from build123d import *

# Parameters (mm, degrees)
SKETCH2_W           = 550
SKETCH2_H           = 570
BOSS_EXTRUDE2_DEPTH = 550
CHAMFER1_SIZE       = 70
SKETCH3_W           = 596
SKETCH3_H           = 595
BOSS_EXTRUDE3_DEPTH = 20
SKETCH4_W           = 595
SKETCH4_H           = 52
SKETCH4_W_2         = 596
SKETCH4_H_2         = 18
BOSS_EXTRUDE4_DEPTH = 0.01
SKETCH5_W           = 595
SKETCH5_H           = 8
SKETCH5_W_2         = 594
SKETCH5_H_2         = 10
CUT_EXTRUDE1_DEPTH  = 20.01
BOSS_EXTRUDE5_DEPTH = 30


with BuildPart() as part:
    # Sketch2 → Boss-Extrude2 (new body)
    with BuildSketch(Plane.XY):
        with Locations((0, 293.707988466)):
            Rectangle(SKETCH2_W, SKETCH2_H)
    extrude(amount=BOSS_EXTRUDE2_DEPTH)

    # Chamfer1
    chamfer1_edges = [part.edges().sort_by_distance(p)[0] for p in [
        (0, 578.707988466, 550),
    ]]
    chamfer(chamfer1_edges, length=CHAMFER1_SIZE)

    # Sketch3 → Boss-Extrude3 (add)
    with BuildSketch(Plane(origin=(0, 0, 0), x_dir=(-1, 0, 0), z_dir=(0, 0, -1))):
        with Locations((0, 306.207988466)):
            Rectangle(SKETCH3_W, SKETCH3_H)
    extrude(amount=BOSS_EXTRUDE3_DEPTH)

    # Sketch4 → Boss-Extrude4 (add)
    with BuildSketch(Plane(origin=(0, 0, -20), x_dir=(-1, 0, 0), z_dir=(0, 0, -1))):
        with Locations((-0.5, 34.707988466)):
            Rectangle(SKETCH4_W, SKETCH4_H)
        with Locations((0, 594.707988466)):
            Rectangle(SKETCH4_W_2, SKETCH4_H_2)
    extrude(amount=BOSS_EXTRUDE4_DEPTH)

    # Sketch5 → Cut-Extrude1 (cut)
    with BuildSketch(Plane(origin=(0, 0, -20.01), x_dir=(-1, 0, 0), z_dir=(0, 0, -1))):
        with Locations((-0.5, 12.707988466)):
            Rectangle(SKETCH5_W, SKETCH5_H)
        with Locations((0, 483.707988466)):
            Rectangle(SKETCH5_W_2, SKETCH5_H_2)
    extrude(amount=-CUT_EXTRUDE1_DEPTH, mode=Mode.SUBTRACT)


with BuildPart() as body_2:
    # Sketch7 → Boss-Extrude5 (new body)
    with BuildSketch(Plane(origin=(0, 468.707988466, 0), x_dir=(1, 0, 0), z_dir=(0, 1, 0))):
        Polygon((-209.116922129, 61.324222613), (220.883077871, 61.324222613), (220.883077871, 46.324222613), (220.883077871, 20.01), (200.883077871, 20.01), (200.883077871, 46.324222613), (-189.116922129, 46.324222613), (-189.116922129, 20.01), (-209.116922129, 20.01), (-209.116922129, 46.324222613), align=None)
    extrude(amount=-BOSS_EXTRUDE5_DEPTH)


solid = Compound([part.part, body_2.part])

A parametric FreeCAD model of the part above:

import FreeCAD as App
import Part
import Sketcher
from FreeCAD import Vector
Q = App.Units.Quantity


def edges_at(feature, points):
    """Names of the edges that pass closest to the given points."""
    edges = feature.Shape.Edges
    near = lambda p: min(range(len(edges)), key=lambda i: edges[i].distToShape(Part.Vertex(*p))[0])
    return sorted({f"Edge{near(p) + 1}" for p in points})


def add_polygon(sketch, points):
    """Adds a closed chain of lines whose ends are joined by coincident constraints."""
    first, n = sketch.GeometryCount, len(points)
    for a, b in zip(points, points[1:] + points[:1]):
        sketch.addGeometry(Part.LineSegment(App.Vector(*a, 0), App.Vector(*b, 0)), False)
    for i in range(n):
        sketch.addConstraint(Sketcher.Constraint("Coincident", first + i, 2, first + (i + 1) % n, 1))

doc = App.newDocument("Part")
params = doc.addObject("Spreadsheet::Sheet", "Params")
for row, (alias, value) in enumerate([
    ("sketch1_width", "550 mm"),
    ("sketch1_height", "570 mm"),
    ("pad1_length", "550 mm"),
    ("chamfer_size", "70 mm"),
    ("sketch2_width", "596 mm"),
    ("sketch2_height", "595 mm"),
    ("pad2_length", "20 mm"),
    ("sketch3_width", "595 mm"),
    ("sketch3_width2", "596 mm"),
    ("sketch3_height", "52 mm"),
    ("sketch3_height2", "18 mm"),
    ("pad3_length", "0.01 mm"),
    ("sketch4_width", "595 mm"),
    ("sketch4_width2", "594 mm"),
    ("sketch4_height", "8 mm"),
    ("sketch4_height2", "10 mm"),
    ("pocket1_length", "20.01 mm"),
    ("sketch5_width", "430 mm"),
    ("sketch5_width2", "20 mm"),
    ("pad4_length", "30 mm"),
], start=1):
    params.set(f"A{row}", alias)
    params.set(f"B{row}", "=" + value)
    params.setAlias(f"B{row}", alias)

body = doc.addObject("PartDesign::Body", "Body")

# Sketch on XY plane
sketch1 = doc.addObject("Sketcher::SketchObject", "Sketch")
body.addObject(sketch1)
sketch1.AttachmentSupport = (doc.XY_Plane, [""])
sketch1.MapMode = "FlatFace"
add_polygon(sketch1, [(-275, 579), (-275, 9), (275, 9), (275, 579)])  # lines 0-3
sketch1.addConstraint([
    Sketcher.Constraint("Vertical", 0),
    Sketcher.Constraint("Horizontal", 1),
    Sketcher.Constraint("Vertical", 2),
    Sketcher.Constraint("Horizontal", 3),
    Sketcher.Constraint("DistanceX", 1, 1, 1, 2, Q("550 mm")),
    Sketcher.Constraint("DistanceY", 0, 2, 0, 1, Q("570 mm")),
    Sketcher.Constraint("DistanceX", 0, 2, -1, 1, Q("275 mm")),
    Sketcher.Constraint("DistanceY", -1, 1, 0, 2, Q("8.707988 mm")),
])
sketch1.setExpression("Constraints[8]", "Params.sketch1_width")
sketch1.setExpression("Constraints[9]", "Params.sketch1_height")
pad1 = doc.addObject("PartDesign::Pad", "Pad")
body.addObject(pad1)
pad1.Profile = sketch1
pad1.setExpression("Length", "Params.pad1_length")
doc.recompute()

chamfer = doc.addObject("PartDesign::Chamfer", "Chamfer")
body.addObject(chamfer)
chamfer.Base = (pad1, edges_at(pad1, [(0, 578.708, 550)]))
chamfer.setExpression("Size", "Params.chamfer_size")

# Sketch on XY plane
sketch2 = doc.addObject("Sketcher::SketchObject", "Sketch001")
body.addObject(sketch2)
sketch2.AttachmentSupport = (doc.XY_Plane, [""])
sketch2.MapMode = "FlatFace"
add_polygon(sketch2, [(298, 604), (298, 9), (-298, 9), (-298, 604)])  # lines 0-3
sketch2.addConstraint([
    Sketcher.Constraint("Vertical", 0),
    Sketcher.Constraint("Horizontal", 1),
    Sketcher.Constraint("Vertical", 2),
    Sketcher.Constraint("Horizontal", 3),
    Sketcher.Constraint("DistanceX", 1, 2, 1, 1, Q("596 mm")),
    Sketcher.Constraint("DistanceY", 0, 2, 0, 1, Q("595 mm")),
    Sketcher.Constraint("DistanceX", -1, 1, 0, 2, Q("298 mm")),
    Sketcher.Constraint("DistanceY", -1, 1, 0, 2, Q("8.707988 mm")),
])
sketch2.setExpression("Constraints[8]", "Params.sketch2_width")
sketch2.setExpression("Constraints[9]", "Params.sketch2_height")
pad2 = doc.addObject("PartDesign::Pad", "Pad001")
body.addObject(pad2)
pad2.Profile = sketch2
pad2.setExpression("Length", "Params.pad2_length")
pad2.Reversed = True

# Sketch on XY plane
sketch3 = doc.addObject("Sketcher::SketchObject", "Sketch002")
body.addObject(sketch3)
sketch3.AttachmentSupport = (doc.XY_Plane, [""])
sketch3.MapMode = "FlatFace"
sketch3.AttachmentOffset = App.Placement(Vector(0, 0, -20), App.Rotation())
add_polygon(sketch3, [(298, 61), (298, 9), (-297, 9), (-297, 61)])  # lines 0-3
add_polygon(sketch3, [(298, 604), (298, 586), (-298, 586), (-298, 604)])  # lines 4-7
sketch3.addConstraint([
    Sketcher.Constraint("Vertical", 0),
    Sketcher.Constraint("Horizontal", 1),
    Sketcher.Constraint("Vertical", 2),
    Sketcher.Constraint("Horizontal", 3),
    Sketcher.Constraint("Vertical", 4),
    Sketcher.Constraint("Horizontal", 5),
    Sketcher.Constraint("Vertical", 6),
    Sketcher.Constraint("Horizontal", 7),
    Sketcher.Constraint("Vertical", 3, 2, 4, 2),
    Sketcher.Constraint("DistanceX", 1, 2, 1, 1, Q("595 mm")),
    Sketcher.Constraint("DistanceX", 5, 2, 5, 1, Q("596 mm")),
    Sketcher.Constraint("DistanceY", 0, 2, 0, 1, Q("52 mm")),
    Sketcher.Constraint("DistanceY", 4, 2, 4, 1, Q("18 mm")),
    Sketcher.Constraint("DistanceX", -1, 1, 0, 2, Q("298 mm")),
    Sketcher.Constraint("DistanceY", 3, 2, 4, 2, Q("525 mm")),
    Sketcher.Constraint("DistanceY", -1, 1, 0, 2, Q("8.707988 mm")),
])
sketch3.setExpression("Constraints[17]", "Params.sketch3_width")
sketch3.setExpression("Constraints[18]", "Params.sketch3_width2")
sketch3.setExpression("Constraints[19]", "Params.sketch3_height")
sketch3.setExpression("Constraints[20]", "Params.sketch3_height2")
pad3 = doc.addObject("PartDesign::Pad", "Pad002")
body.addObject(pad3)
pad3.Profile = sketch3
pad3.setExpression("Length", "Params.pad3_length")
pad3.Reversed = True

# Sketch on XY plane
sketch4 = doc.addObject("Sketcher::SketchObject", "Sketch003")
body.addObject(sketch4)
sketch4.AttachmentSupport = (doc.XY_Plane, [""])
sketch4.MapMode = "FlatFace"
sketch4.AttachmentOffset = App.Placement(Vector(0, 0, -20.01), App.Rotation())
add_polygon(sketch4, [(298, 17), (298, 9), (-297, 9), (-297, 17)])  # lines 0-3
add_polygon(sketch4, [(297, 489), (297, 479), (-297, 479), (-297, 489)])  # lines 4-7
sketch4.addConstraint([
    Sketcher.Constraint("Vertical", 0),
    Sketcher.Constraint("Horizontal", 1),
    Sketcher.Constraint("Vertical", 2),
    Sketcher.Constraint("Horizontal", 3),
    Sketcher.Constraint("Vertical", 4),
    Sketcher.Constraint("Horizontal", 5),
    Sketcher.Constraint("Vertical", 6),
    Sketcher.Constraint("Horizontal", 7),
    Sketcher.Constraint("Vertical", 2, 2, 5, 2),
    Sketcher.Constraint("DistanceX", 1, 2, 1, 1, Q("595 mm")),
    Sketcher.Constraint("DistanceX", 5, 2, 5, 1, Q("594 mm")),
    Sketcher.Constraint("DistanceY", 0, 2, 0, 1, Q("8 mm")),
    Sketcher.Constraint("DistanceY", 4, 2, 4, 1, Q("10 mm")),
    Sketcher.Constraint("DistanceX", -1, 1, 0, 2, Q("298 mm")),
    Sketcher.Constraint("DistanceY", 3, 2, 4, 2, Q("462 mm")),
    Sketcher.Constraint("DistanceY", -1, 1, 0, 2, Q("8.707988 mm")),
])
sketch4.setExpression("Constraints[17]", "Params.sketch4_width")
sketch4.setExpression("Constraints[18]", "Params.sketch4_width2")
sketch4.setExpression("Constraints[19]", "Params.sketch4_height")
sketch4.setExpression("Constraints[20]", "Params.sketch4_height2")
pocket1 = doc.addObject("PartDesign::Pocket", "Pocket")
body.addObject(pocket1)
pocket1.Profile = sketch4
pocket1.setExpression("Length", "Params.pocket1_length")
pocket1.Reversed = True
body2 = doc.addObject("PartDesign::Body", "Body001")

# Sketch on XZ plane
sketch5 = doc.addObject("Sketcher::SketchObject", "Sketch004")
body2.addObject(sketch5)
sketch5.AttachmentSupport = (doc.getObject("XZ_Plane001"), [""])
sketch5.MapMode = "FlatFace"
sketch5.AttachmentOffset = App.Placement(Vector(0, 0, -468.707988), App.Rotation())
add_polygon(sketch5, [(221, -61), (-209, -61), (-209, -20), (-189, -20), (-189, -46), (201, -46), (201, -20), (221, -20)])  # lines 0-7
sketch5.addConstraint([
    Sketcher.Constraint("Horizontal", 0),
    Sketcher.Constraint("Vertical", 1),
    Sketcher.Constraint("Horizontal", 2),
    Sketcher.Constraint("Vertical", 3),
    Sketcher.Constraint("Horizontal", 4),
    Sketcher.Constraint("Vertical", 5),
    Sketcher.Constraint("Horizontal", 6),
    Sketcher.Constraint("Vertical", 7),
    Sketcher.Constraint("Horizontal", 2, 2, 5, 2),
    Sketcher.Constraint("Equal", 2, 6),
    Sketcher.Constraint("DistanceX", 0, 2, 0, 1, Q("430 mm")),
    Sketcher.Constraint("DistanceX", 2, 1, 2, 2, Q("20 mm")),
    Sketcher.Constraint("DistanceY", 0, 2, 3, 2, Q("15 mm")),
    Sketcher.Constraint("DistanceY", 1, 2, -1, 1, Q("20.01 mm")),
    Sketcher.Constraint("DistanceY", 1, 1, 1, 2, Q("41.314223 mm")),
    Sketcher.Constraint("DistanceX", 0, 2, -1, 1, Q("209.116922 mm")),
])
sketch5.setExpression("Constraints[18]", "Params.sketch5_width")
sketch5.setExpression("Constraints[19]", "Params.sketch5_width2")
pad4 = doc.addObject("PartDesign::Pad", "Pad003")
body2.addObject(pad4)
pad4.Profile = sketch5
pad4.setExpression("Length", "Params.pad4_length")

doc.recompute()
